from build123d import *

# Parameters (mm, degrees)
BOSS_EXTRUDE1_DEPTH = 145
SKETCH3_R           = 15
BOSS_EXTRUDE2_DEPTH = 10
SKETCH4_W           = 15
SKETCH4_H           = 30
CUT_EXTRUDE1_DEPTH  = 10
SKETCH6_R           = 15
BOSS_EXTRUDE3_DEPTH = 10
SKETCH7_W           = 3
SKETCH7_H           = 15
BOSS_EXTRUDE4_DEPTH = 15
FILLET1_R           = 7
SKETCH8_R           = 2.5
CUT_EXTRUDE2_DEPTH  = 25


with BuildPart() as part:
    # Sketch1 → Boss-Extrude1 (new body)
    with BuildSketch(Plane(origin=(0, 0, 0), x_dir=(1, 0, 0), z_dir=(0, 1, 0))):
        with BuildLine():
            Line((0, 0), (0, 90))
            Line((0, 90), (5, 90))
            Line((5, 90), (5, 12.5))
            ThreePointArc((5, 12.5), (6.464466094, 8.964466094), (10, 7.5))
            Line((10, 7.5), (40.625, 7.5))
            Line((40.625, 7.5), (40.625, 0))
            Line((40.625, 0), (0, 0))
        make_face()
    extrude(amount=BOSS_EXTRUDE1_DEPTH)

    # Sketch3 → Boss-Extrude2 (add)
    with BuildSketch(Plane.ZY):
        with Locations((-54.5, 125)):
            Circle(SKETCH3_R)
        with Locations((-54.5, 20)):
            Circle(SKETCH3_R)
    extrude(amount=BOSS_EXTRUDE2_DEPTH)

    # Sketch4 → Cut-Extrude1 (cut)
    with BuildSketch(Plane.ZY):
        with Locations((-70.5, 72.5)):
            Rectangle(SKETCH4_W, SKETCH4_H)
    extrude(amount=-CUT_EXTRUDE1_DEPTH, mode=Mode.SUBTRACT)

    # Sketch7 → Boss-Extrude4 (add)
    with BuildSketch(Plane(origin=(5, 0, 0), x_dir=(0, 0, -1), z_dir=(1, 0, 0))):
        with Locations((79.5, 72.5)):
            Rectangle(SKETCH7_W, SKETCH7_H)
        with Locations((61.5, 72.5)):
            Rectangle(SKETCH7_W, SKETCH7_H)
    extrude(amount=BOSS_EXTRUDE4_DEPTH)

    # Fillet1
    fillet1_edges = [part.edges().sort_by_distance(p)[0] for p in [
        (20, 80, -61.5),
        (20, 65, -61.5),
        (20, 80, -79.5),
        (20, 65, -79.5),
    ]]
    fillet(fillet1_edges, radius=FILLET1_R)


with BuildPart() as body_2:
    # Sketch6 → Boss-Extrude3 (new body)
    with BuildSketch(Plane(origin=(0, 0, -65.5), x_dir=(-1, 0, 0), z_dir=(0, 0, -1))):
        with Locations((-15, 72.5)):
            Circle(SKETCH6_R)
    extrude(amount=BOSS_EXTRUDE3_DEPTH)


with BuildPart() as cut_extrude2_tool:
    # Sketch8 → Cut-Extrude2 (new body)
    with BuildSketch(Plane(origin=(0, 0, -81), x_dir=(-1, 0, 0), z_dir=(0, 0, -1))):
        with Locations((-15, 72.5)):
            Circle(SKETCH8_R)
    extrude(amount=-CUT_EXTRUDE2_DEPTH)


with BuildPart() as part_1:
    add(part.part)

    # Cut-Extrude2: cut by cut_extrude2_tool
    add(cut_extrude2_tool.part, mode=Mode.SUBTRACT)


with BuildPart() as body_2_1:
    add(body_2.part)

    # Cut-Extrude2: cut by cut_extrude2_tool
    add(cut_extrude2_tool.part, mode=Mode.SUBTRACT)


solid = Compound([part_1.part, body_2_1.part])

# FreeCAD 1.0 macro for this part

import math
import FreeCAD as App
import Part
import Sketcher
Q = App.Units.Quantity


def edges_at(feature, points):
    """Names of the edges that pass closest to the given points."""
    edges = feature.Shape.Edges
    near = lambda p: min(range(len(edges)), key=lambda i: edges[i].distToShape(Part.Vertex(*p))[0])
    return sorted({f"Edge{near(p) + 1}" for p in points})


def add_polygon(sketch, points):
    """Adds a closed chain of lines whose ends are joined by coincident constraints."""
    first, n = sketch.GeometryCount, len(points)
    for a, b in zip(points, points[1:] + points[:1]):
        sketch.addGeometry(Part.LineSegment(App.Vector(*a, 0), App.Vector(*b, 0)), False)
    for i in range(n):
        sketch.addConstraint(Sketcher.Constraint("Coincident", first + i, 2, first + (i + 1) % n, 1))

doc = App.newDocument("Part")
body = doc.addObject("PartDesign::Body", "Body")

# Sketch on XZ plane
sketch1 = body.newObject("Sketcher::SketchObject", "Sketch")
sketch1.AttachmentSupport = (doc.getObject("XZ_Plane"), [""])
sketch1.MapMode = "FlatFace"
sketch1.addGeometry(Part.LineSegment(App.Vector(0, -90, 0), App.Vector(0, 0, 0)), False)
sketch1.addGeometry(Part.LineSegment(App.Vector(0, 0, 0), App.Vector(41, 0, 0)), False)
sketch1.addGeometry(Part.LineSegment(App.Vector(41, 0, 0), App.Vector(41, -8, 0)), False)
sketch1.addGeometry(Part.LineSegment(App.Vector(41, -8, 0), App.Vector(10, -8, 0)), False)
sketch1.addGeometry(Part.ArcOfCircle(Part.Circle(App.Vector(10, -12, 0), App.Vector(0, 0, 1), 5), math.radians(90), math.radians(180)), False)
sketch1.addGeometry(Part.LineSegment(App.Vector(5, -12, 0), App.Vector(5, -90, 0)), False)
sketch1.addGeometry(Part.LineSegment(App.Vector(5, -90, 0), App.Vector(0, -90, 0)), False)
sketch1.addConstraint(Sketcher.Constraint("Coincident", 0, 2, 1, 1))
sketch1.addConstraint(Sketcher.Constraint("Coincident", 1, 2, 2, 1))
sketch1.addConstraint(Sketcher.Constraint("Coincident", 2, 2, 3, 1))
sketch1.addConstraint(Sketcher.Constraint("Tangent", 3, 2, 4, 1))
sketch1.addConstraint(Sketcher.Constraint("Tangent", 4, 2, 5, 1))
sketch1.addConstraint(Sketcher.Constraint("Coincident", 5, 2, 6, 1))
sketch1.addConstraint(Sketcher.Constraint("Coincident", 6, 2, 0, 1))
sketch1.addConstraint(Sketcher.Constraint("Vertical", 0))
sketch1.addConstraint(Sketcher.Constraint("Horizontal", 1))
sketch1.addConstraint(Sketcher.Constraint("Vertical", 2))
sketch1.addConstraint(Sketcher.Constraint("Horizontal", 3))
sketch1.addConstraint(Sketcher.Constraint("Vertical", 5))
sketch1.addConstraint(Sketcher.Constraint("Horizontal", 6))
sketch1.addConstraint(Sketcher.Constraint("Coincident", 0, 2, -1, 1))
sketch1.addConstraint(Sketcher.Constraint("Radius", 4, Q("5 mm")))
sketch1.addConstraint(Sketcher.Constraint("DistanceX", 6, 2, 6, 1, Q("5 mm")))
sketch1.addConstraint(Sketcher.Constraint("DistanceY", 0, 1, 0, 2, Q("90 mm")))
sketch1.addConstraint(Sketcher.Constraint("DistanceY", 2, 2, 2, 1, Q("7.5 mm")))
sketch1.addConstraint(Sketcher.Constraint("DistanceX", 1, 1, 1, 2, Q("40.625 mm")))
pad1 = body.newObject("PartDesign::Pad", "Pad")
pad1.Profile = sketch1
pad1.Length = 145
pad1.Reversed = True

# Sketch on YZ plane
sketch2 = body.newObject("Sketcher::SketchObject", "Sketch001")
sketch2.AttachmentSupport = (doc.getObject("YZ_Plane"), [""])
sketch2.MapMode = "FlatFace"
sketch2.addGeometry(Part.Circle(App.Vector(125, -54, 0), App.Vector(0, 0, 1), 15), False)
sketch2.addGeometry(Part.Circle(App.Vector(20, -54, 0), App.Vector(0, 0, 1), 15), False)
sketch2.addConstraint(Sketcher.Constraint("Equal", 0, 1))
sketch2.addConstraint(Sketcher.Constraint("Horizontal", 0, 3, 1, 3))
sketch2.addConstraint(Sketcher.Constraint("Diameter", 0, Q("30 mm")))
sketch2.addConstraint(Sketcher.Constraint("DistanceX", -1, 1, 0, 3, Q("125 mm")))
sketch2.addConstraint(Sketcher.Constraint("DistanceX", -1, 1, 1, 3, Q("20 mm")))
sketch2.addConstraint(Sketcher.Constraint("DistanceY", 0, 3, -1, 1, Q("54.5 mm")))
pad2 = body.newObject("PartDesign::Pad", "Pad001")
pad2.Profile = sketch2
pad2.Length = 10
pad2.Reversed = True

# Sketch on YZ plane
sketch3 = body.newObject("Sketcher::SketchObject", "Sketch002")
sketch3.AttachmentSupport = (doc.getObject("YZ_Plane"), [""])
sketch3.MapMode = "FlatFace"
add_polygon(sketch3, [(88, -78), (58, -78), (58, -63), (88, -63)])  # lines 0-3
sketch3.addConstraint(Sketcher.Constraint("Horizontal", 0))
sketch3.addConstraint(Sketcher.Constraint("Vertical", 1))
sketch3.addConstraint(Sketcher.Constraint("Horizontal", 2))
sketch3.addConstraint(Sketcher.Constraint("Vertical", 3))
sketch3.addConstraint(Sketcher.Constraint("DistanceX", 0, 2, 0, 1, Q("30 mm")))
sketch3.addConstraint(Sketcher.Constraint("DistanceY", 1, 1, 1, 2, Q("15 mm")))
sketch3.addConstraint(Sketcher.Constraint("DistanceY", 0, 2, -1, 1, Q("78 mm")))
sketch3.addConstraint(Sketcher.Constraint("DistanceX", -1, 1, 0, 2, Q("57.5 mm")))
pocket1 = body.newObject("PartDesign::Pocket", "Pocket")
pocket1.Profile = sketch3
pocket1.Length = 10
pocket1.Reversed = True

# Sketch on YZ plane
sketch4 = body.newObject("Sketcher::SketchObject", "Sketch003")
sketch4.AttachmentSupport = (doc.getObject("YZ_Plane"), [""])
sketch4.MapMode = "FlatFace"
sketch4.AttachmentOffset = App.Placement(App.Vector(0, 0, 5), App.Rotation())
add_polygon(sketch4, [(80, -78), (65, -78), (65, -81), (80, -81)])  # lines 0-3
add_polygon(sketch4, [(80, -60), (65, -60), (65, -63), (80, -63)])  # lines 4-7
sketch4.addConstraint(Sketcher.Constraint("Horizontal", 0))
sketch4.addConstraint(Sketcher.Constraint("Vertical", 1))
sketch4.addConstraint(Sketcher.Constraint("Horizontal", 2))
sketch4.addConstraint(Sketcher.Constraint("Vertical", 3))
sketch4.addConstraint(Sketcher.Constraint("Horizontal", 4))
sketch4.addConstraint(Sketcher.Constraint("Vertical", 5))
sketch4.addConstraint(Sketcher.Constraint("Horizontal", 6))
sketch4.addConstraint(Sketcher.Constraint("Vertical", 7))
sketch4.addConstraint(Sketcher.Constraint("Vertical", 1, 2, 4, 2))
sketch4.addConstraint(Sketcher.Constraint("Vertical", 3, 2, 6, 2))
sketch4.addConstraint(Sketcher.Constraint("Equal", 3, 5))
sketch4.addConstraint(Sketcher.Constraint("DistanceX", 0, 2, 0, 1, Q("15 mm")))
sketch4.addConstraint(Sketcher.Constraint("DistanceY", 1, 2, 1, 1, Q("3 mm")))
sketch4.addConstraint(Sketcher.Constraint("DistanceX", -1, 1, 0, 2, Q("65 mm")))
sketch4.addConstraint(Sketcher.Constraint("DistanceY", 0, 2, -1, 1, Q("78 mm")))
sketch4.addConstraint(Sketcher.Constraint("DistanceY", 4, 2, -1, 1, Q("60 mm")))
pad3 = body.newObject("PartDesign::Pad", "Pad002")
pad3.Profile = sketch4
pad3.Length = 15
doc.recompute()

fillet = body.newObject("PartDesign::Fillet", "Fillet")
fillet.Base = (pad3, edges_at(pad3, [
    (20, 80, -61.5),
    (20, 65, -61.5),
    (20, 80, -79.5),
    (20, 65, -79.5),
]))
fillet.Radius = 7
body2 = doc.addObject("PartDesign::Body", "Body001")

# Sketch on XY plane
sketch5 = body2.newObject("Sketcher::SketchObject", "Sketch004")
sketch5.AttachmentSupport = (doc.getObject("XY_Plane001"), [""])
sketch5.MapMode = "FlatFace"
sketch5.AttachmentOffset = App.Placement(App.Vector(0, 0, -65.5), App.Rotation())
sketch5.addGeometry(Part.Circle(App.Vector(15, 72, 0), App.Vector(0, 0, 1), 15), False)
sketch5.addConstraint(Sketcher.Constraint("Diameter", 0, Q("30 mm")))
sketch5.addConstraint(Sketcher.Constraint("DistanceX", -1, 1, 0, 3, Q("15 mm")))
sketch5.addConstraint(Sketcher.Constraint("DistanceY", -1, 1, 0, 3, Q("72.5 mm")))
pad4 = body2.newObject("PartDesign::Pad", "Pad003")
pad4.Profile = sketch5
pad4.Length = 10
pad4.Reversed = True
body3 = doc.addObject("PartDesign::Body", "Body002")

# Sketch on XY plane
sketch6 = body3.newObject("Sketcher::SketchObject", "Sketch005")
sketch6.AttachmentSupport = (doc.getObject("XY_Plane002"), [""])
sketch6.MapMode = "FlatFace"
sketch6.AttachmentOffset = App.Placement(App.Vector(0, 0, -81), App.Rotation())
sketch6.addGeometry(Part.Circle(App.Vector(15, 72.5, 0), App.Vector(0, 0, 1), 2.5), False)
sketch6.addConstraint(Sketcher.Constraint("Diameter", 0, Q("5 mm")))
sketch6.addConstraint(Sketcher.Constraint("DistanceX", -1, 1, 0, 3, Q("15 mm")))
sketch6.addConstraint(Sketcher.Constraint("DistanceY", -1, 1, 0, 3, Q("72.5 mm")))
pad5 = body3.newObject("PartDesign::Pad", "Pad004")
pad5.Profile = sketch6
pad5.Length = 25
doc.recompute()

body4 = doc.addObject("PartDesign::Body", "Body003")
body4.BaseFeature = body3
boolean = body.newObject("PartDesign::Boolean", "Boolean")
boolean.Type = "Cut"
boolean.addObjects([body4])
doc.recompute()

boolean2 = body2.newObject("PartDesign::Boolean", "Boolean001")
boolean2.Type = "Cut"
boolean2.addObjects([body3])

doc.recompute()
